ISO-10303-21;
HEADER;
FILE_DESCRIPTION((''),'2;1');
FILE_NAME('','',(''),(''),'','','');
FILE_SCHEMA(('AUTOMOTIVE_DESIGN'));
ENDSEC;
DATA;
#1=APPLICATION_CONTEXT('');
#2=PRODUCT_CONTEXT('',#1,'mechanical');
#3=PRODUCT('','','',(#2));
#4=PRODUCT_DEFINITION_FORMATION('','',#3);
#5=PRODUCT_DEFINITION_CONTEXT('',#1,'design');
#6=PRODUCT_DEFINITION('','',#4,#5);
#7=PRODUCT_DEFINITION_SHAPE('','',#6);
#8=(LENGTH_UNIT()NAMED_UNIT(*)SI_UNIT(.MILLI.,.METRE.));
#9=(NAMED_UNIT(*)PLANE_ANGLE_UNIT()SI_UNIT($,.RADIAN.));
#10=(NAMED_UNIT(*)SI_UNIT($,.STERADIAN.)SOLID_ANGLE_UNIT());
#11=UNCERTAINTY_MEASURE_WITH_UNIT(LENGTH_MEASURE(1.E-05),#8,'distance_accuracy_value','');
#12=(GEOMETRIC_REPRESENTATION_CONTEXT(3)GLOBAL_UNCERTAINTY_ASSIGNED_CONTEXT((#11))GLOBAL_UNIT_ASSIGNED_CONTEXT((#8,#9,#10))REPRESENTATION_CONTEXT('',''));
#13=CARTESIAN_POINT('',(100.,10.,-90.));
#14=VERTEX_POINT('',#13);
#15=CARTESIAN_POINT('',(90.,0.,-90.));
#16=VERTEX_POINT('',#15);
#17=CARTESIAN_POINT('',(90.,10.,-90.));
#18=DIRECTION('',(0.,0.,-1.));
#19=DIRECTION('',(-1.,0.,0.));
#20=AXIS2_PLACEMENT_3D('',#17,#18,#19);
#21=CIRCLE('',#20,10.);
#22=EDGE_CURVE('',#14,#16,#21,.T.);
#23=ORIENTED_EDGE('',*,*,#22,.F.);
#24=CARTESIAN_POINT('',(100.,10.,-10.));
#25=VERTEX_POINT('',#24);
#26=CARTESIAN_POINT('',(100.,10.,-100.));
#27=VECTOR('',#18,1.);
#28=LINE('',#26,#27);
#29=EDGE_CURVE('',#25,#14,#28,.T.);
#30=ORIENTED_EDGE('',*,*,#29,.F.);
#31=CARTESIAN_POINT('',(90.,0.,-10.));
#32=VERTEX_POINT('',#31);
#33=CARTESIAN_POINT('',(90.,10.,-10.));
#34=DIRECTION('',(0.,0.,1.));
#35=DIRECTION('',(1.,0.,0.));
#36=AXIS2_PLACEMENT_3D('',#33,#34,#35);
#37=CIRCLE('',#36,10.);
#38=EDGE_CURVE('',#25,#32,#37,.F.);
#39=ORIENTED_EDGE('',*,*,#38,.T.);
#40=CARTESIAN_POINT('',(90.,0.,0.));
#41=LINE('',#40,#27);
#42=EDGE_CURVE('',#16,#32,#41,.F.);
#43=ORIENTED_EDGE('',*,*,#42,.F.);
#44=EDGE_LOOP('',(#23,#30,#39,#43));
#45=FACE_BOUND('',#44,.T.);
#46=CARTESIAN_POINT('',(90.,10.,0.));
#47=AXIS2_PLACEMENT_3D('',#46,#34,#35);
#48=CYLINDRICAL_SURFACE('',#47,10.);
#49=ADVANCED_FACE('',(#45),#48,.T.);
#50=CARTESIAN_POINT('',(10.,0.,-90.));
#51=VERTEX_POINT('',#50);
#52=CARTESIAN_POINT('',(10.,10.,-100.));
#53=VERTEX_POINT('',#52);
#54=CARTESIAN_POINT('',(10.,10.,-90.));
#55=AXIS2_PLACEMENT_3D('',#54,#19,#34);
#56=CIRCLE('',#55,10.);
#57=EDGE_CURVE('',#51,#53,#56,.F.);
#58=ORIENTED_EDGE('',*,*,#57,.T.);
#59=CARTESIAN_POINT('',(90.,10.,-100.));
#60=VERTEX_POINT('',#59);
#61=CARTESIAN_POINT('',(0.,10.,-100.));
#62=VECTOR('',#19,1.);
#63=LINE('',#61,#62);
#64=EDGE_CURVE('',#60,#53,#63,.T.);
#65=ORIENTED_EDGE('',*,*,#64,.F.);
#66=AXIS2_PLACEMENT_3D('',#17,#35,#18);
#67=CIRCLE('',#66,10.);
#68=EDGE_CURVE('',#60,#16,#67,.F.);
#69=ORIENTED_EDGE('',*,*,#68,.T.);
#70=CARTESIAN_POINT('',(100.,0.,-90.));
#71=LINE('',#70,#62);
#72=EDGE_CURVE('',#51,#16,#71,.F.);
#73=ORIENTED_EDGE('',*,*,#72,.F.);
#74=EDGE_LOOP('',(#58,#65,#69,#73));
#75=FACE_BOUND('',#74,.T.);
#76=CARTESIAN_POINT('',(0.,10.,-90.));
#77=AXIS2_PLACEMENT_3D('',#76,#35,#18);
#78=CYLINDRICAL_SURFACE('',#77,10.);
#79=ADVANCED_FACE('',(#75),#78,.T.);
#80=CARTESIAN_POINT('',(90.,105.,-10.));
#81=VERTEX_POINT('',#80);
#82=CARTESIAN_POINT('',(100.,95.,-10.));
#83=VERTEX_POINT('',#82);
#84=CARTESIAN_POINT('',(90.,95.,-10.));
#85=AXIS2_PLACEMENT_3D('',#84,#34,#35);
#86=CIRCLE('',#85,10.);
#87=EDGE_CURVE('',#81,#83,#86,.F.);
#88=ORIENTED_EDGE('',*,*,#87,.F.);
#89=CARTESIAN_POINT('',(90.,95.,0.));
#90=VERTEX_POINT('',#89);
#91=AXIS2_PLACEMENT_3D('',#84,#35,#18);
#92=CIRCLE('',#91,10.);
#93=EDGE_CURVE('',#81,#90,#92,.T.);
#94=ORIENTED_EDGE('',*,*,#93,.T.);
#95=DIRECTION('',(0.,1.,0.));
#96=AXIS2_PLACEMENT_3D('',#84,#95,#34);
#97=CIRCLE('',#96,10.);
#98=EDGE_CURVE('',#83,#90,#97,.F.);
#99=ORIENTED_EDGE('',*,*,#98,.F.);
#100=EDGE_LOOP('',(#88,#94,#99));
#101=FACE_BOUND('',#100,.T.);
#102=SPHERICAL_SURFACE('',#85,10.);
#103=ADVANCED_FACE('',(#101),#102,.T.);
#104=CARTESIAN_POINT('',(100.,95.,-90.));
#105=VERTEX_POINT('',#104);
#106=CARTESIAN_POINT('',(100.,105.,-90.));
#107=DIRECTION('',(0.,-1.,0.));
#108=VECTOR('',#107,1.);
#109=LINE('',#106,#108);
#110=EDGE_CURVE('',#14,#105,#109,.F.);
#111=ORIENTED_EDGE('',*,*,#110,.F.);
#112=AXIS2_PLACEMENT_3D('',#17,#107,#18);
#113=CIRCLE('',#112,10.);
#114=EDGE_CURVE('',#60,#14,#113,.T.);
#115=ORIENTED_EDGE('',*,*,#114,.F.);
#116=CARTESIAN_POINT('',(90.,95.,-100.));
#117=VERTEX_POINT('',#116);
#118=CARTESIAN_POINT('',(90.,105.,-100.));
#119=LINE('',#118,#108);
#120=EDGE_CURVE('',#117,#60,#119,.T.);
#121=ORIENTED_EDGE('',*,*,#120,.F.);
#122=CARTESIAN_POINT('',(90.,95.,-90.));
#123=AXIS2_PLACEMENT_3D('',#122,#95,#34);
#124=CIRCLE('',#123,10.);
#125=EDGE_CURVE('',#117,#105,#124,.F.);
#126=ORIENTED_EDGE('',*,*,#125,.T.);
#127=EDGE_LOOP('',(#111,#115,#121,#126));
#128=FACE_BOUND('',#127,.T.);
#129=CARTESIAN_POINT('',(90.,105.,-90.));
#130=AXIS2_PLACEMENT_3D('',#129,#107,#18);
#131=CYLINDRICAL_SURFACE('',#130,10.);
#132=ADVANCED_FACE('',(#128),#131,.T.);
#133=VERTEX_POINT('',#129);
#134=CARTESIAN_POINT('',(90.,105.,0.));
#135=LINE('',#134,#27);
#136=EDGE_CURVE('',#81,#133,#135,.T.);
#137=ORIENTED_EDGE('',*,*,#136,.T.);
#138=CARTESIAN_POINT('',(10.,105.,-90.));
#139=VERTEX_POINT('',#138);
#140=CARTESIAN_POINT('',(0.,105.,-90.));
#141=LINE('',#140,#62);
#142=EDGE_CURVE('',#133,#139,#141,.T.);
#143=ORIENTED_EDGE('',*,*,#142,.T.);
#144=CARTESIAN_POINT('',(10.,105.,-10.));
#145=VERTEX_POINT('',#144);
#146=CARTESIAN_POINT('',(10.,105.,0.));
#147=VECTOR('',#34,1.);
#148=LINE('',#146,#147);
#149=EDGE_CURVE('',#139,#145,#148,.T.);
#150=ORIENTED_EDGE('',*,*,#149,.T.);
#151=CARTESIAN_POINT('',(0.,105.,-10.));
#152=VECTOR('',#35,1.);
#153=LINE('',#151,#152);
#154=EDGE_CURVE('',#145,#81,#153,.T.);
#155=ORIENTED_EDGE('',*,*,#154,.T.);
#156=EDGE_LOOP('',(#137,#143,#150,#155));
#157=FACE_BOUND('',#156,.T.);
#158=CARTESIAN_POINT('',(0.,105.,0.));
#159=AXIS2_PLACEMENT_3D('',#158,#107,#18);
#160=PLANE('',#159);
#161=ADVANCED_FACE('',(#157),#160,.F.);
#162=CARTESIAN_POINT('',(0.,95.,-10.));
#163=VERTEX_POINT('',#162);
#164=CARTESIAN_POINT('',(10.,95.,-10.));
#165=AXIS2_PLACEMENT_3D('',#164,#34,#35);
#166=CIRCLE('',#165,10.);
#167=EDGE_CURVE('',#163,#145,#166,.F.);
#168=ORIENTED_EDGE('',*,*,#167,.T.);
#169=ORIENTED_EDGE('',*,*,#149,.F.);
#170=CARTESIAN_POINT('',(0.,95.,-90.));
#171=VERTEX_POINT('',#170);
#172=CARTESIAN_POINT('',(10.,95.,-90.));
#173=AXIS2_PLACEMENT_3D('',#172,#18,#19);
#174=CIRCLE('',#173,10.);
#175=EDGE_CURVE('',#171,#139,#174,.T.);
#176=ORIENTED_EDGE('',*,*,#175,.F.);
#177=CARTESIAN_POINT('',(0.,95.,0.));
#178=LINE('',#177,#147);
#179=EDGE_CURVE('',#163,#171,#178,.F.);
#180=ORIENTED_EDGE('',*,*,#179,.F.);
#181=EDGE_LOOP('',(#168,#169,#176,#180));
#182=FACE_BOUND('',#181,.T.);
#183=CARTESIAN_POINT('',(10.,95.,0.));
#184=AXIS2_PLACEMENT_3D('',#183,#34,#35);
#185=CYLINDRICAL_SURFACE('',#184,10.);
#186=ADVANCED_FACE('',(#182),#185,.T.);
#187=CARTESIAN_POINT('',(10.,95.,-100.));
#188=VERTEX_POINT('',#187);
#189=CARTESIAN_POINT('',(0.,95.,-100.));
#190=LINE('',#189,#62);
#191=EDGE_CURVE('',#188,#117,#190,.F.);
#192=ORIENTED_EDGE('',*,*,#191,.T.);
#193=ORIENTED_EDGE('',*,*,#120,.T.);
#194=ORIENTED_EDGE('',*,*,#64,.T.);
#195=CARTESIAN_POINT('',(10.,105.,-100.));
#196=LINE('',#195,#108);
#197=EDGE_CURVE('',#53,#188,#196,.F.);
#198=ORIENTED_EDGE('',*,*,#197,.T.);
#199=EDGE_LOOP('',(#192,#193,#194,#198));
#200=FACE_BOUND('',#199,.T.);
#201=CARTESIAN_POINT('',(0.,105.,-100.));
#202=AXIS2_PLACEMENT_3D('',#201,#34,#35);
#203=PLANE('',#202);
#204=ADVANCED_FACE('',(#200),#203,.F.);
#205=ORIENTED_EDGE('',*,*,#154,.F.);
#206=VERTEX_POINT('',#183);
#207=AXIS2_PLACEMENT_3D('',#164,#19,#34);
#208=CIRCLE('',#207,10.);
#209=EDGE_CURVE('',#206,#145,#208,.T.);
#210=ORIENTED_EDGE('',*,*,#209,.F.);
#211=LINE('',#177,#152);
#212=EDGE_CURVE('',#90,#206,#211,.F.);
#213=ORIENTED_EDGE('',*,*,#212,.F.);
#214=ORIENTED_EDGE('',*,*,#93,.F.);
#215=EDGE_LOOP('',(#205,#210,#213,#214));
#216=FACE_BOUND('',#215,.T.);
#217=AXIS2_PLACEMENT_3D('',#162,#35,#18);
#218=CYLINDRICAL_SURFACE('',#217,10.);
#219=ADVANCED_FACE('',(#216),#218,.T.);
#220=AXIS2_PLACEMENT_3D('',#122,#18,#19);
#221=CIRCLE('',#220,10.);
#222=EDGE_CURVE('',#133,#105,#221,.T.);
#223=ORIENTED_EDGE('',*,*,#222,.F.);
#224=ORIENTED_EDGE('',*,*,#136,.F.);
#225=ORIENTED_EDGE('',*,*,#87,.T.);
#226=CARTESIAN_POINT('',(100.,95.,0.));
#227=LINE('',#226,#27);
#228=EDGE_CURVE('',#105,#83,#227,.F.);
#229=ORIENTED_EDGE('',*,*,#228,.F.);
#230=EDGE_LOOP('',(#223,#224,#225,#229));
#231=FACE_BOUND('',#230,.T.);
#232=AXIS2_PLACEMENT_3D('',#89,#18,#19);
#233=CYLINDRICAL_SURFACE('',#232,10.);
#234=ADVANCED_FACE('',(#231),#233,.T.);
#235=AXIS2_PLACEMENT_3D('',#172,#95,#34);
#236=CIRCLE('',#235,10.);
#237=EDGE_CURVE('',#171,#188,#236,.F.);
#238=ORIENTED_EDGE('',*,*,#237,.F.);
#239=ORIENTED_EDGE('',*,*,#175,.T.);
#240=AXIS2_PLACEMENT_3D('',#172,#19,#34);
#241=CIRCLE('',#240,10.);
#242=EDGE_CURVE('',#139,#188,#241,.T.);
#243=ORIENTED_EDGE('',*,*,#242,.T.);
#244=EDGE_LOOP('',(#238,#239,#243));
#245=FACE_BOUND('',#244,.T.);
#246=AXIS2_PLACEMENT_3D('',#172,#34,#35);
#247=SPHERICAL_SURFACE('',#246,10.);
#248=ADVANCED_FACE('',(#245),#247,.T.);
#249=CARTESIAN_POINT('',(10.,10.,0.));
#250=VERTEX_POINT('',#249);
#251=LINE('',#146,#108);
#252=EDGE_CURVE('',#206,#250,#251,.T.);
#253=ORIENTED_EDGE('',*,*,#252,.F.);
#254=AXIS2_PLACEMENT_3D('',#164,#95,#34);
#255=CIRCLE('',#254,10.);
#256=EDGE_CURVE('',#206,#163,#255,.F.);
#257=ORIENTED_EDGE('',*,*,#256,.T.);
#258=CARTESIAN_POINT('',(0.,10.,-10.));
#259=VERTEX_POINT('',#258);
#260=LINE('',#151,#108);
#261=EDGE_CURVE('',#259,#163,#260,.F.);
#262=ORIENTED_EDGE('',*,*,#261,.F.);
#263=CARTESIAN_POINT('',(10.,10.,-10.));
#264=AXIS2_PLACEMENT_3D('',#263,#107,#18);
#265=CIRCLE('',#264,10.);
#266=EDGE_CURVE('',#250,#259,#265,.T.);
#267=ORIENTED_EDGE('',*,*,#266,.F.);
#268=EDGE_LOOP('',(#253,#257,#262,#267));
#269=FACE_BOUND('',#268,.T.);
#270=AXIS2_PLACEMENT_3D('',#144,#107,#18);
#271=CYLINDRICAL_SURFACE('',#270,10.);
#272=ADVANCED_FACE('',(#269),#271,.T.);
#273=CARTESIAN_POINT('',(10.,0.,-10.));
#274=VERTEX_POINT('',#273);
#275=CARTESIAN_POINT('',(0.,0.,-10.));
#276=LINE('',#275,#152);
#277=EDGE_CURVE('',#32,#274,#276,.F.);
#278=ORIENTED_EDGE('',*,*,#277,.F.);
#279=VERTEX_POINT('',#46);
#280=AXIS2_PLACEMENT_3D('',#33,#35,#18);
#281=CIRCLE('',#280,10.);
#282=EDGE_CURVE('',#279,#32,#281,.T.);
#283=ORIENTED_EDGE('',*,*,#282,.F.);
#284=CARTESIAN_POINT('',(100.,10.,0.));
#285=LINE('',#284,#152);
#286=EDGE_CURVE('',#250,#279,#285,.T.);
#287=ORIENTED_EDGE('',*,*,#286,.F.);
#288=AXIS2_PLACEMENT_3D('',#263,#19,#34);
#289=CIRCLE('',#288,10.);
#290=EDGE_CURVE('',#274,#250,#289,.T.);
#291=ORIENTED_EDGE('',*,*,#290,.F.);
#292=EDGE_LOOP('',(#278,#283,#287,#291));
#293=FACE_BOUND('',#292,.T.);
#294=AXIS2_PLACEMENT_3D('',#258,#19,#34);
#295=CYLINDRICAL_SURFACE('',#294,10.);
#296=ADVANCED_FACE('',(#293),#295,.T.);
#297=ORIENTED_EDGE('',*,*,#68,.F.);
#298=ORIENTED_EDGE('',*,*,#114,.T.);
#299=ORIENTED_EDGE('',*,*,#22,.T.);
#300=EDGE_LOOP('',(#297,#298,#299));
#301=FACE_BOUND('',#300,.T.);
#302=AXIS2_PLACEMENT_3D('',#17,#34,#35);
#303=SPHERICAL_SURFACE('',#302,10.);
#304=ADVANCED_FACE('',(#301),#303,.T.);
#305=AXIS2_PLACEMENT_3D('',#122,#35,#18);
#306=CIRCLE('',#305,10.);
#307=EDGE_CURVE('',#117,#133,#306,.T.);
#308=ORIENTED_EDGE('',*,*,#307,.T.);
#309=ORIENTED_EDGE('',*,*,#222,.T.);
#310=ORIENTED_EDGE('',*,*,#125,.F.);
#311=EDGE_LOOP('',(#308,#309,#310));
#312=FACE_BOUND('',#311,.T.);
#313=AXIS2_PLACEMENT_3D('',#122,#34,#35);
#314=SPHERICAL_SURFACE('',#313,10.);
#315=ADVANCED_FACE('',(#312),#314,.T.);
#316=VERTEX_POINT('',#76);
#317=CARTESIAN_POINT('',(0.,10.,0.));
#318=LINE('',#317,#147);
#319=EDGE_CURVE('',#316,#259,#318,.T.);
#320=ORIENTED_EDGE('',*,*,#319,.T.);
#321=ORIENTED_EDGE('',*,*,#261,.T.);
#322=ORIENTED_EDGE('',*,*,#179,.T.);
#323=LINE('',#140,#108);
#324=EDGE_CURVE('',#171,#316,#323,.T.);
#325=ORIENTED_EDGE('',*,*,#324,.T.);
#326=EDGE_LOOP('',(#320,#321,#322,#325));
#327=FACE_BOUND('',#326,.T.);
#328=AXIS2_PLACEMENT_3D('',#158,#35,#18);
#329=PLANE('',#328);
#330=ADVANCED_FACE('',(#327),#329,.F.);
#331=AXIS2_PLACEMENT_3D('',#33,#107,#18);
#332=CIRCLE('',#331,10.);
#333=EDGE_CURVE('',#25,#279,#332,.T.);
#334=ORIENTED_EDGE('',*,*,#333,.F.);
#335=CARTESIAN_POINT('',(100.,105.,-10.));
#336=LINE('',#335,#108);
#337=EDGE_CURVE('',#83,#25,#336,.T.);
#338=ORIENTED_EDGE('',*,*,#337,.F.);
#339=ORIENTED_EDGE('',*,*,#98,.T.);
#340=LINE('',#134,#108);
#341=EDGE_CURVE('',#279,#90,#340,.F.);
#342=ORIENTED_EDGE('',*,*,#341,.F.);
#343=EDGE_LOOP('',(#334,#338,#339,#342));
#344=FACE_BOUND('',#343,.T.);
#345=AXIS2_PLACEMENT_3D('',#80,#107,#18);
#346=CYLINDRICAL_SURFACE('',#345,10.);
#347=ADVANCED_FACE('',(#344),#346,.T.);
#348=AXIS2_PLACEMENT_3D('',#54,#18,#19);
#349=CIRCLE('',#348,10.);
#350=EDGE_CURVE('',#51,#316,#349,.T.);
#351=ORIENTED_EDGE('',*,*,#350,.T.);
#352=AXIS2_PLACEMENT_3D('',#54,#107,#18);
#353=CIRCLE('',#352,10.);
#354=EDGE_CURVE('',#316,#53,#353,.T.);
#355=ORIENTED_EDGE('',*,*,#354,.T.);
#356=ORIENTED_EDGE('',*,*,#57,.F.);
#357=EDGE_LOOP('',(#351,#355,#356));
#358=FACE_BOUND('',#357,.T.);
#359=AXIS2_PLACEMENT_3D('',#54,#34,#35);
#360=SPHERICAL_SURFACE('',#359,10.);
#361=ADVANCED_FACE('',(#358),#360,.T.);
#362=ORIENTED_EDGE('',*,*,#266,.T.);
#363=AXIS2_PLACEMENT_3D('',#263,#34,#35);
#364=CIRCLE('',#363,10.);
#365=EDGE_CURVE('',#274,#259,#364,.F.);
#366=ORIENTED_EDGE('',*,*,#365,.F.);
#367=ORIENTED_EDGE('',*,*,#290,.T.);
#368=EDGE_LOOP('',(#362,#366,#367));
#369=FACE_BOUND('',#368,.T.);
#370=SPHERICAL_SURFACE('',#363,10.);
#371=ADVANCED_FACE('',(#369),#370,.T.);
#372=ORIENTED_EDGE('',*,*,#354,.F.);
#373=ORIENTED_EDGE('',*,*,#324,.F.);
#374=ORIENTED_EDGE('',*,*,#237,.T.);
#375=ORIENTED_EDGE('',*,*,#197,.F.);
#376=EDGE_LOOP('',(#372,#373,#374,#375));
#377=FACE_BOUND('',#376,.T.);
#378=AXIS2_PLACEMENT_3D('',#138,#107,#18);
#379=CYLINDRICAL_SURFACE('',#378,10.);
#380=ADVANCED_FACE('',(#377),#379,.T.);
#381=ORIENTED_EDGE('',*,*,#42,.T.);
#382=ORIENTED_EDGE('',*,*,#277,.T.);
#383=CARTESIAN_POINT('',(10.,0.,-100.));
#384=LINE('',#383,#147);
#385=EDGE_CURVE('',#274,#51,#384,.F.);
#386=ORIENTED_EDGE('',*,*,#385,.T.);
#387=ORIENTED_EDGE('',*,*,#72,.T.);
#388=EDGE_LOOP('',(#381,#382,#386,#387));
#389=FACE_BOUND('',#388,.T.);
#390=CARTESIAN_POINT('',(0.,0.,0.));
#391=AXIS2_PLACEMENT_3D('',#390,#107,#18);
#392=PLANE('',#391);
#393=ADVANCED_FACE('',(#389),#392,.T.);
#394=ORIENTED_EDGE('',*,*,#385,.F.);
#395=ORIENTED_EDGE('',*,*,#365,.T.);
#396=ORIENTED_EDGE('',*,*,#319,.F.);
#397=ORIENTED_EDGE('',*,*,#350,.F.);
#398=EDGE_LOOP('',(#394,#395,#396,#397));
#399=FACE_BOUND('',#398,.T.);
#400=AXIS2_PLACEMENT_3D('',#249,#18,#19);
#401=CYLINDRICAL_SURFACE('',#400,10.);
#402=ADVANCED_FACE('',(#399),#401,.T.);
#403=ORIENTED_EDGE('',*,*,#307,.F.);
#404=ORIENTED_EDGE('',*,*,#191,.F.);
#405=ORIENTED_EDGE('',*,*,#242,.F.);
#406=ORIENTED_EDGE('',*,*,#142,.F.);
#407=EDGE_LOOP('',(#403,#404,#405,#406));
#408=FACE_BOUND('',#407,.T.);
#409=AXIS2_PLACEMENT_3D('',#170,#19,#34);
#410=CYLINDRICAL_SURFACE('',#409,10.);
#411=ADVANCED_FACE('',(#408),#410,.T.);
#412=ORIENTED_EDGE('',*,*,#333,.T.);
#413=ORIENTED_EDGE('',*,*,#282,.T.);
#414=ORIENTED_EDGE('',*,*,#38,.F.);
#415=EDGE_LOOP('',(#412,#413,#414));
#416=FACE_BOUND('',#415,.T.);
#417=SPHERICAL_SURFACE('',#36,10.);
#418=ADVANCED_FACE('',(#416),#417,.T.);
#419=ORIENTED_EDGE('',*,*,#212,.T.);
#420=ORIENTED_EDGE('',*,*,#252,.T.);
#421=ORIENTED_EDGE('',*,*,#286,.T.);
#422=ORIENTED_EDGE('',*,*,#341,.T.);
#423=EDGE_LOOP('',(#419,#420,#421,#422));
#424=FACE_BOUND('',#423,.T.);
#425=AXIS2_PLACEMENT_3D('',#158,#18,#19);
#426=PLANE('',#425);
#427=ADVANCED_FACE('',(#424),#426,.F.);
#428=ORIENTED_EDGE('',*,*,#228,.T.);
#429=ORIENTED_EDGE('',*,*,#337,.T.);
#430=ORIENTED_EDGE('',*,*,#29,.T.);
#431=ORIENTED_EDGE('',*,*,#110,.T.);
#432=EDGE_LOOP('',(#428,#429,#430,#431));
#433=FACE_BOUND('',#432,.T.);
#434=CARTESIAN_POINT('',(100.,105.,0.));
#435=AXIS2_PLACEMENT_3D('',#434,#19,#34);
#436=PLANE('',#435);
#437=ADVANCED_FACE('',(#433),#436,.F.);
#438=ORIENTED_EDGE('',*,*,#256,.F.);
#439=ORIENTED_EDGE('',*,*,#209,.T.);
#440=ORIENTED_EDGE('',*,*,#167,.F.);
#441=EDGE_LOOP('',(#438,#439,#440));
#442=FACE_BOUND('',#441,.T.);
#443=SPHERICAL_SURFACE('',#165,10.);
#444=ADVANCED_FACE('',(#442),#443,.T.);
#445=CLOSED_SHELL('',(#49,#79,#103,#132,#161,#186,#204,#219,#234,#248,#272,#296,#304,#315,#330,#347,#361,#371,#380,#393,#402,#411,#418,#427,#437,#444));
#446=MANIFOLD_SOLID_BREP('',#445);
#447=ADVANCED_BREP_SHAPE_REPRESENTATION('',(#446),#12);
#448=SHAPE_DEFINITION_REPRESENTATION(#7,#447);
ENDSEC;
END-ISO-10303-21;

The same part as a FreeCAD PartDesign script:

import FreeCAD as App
import Part
import Sketcher

V = App.Vector
Q = App.Units.Quantity

doc = App.newDocument("Part")
body = doc.addObject("PartDesign::Body", "Body")

# Sketch on XZ plane
sketch1 = doc.addObject("Sketcher::SketchObject", "Sketch")
body.addObject(sketch1)
sketch1.AttachmentSupport = (doc.XZ_Plane, [""])
sketch1.MapMode = "FlatFace"
sketch1.addGeometry([
    Part.LineSegment(V(0, -100, 0), V(0, 0, 0)),
    Part.LineSegment(V(0, 0, 0), V(100, 0, 0)),
    Part.LineSegment(V(100, 0, 0), V(100, -100, 0)),
    Part.LineSegment(V(100, -100, 0), V(0, -100, 0)),
], False)
sketch1.addConstraint([
    Sketcher.Constraint("Coincident", 0, 2, 1, 1),
    Sketcher.Constraint("Coincident", 1, 2, 2, 1),
    Sketcher.Constraint("Coincident", 2, 2, 3, 1),
    Sketcher.Constraint("Coincident", 3, 2, 0, 1),
    Sketcher.Constraint("Vertical", 0),
    Sketcher.Constraint("Horizontal", 1),
    Sketcher.Constraint("Vertical", 2),
    Sketcher.Constraint("Horizontal", 3),
    Sketcher.Constraint("Coincident", 0, 2, -1, 1),
    Sketcher.Constraint("Equal", 3, 0),
    Sketcher.Constraint("DistanceX", 1, 1, 1, 2, Q("100 mm")),
])
pad1 = doc.addObject("PartDesign::Pad", "Pad")
body.addObject(pad1)
pad1.Profile = sketch1
pad1.Length = 105
pad1.Reversed = True
doc.recompute()

fillet = doc.addObject("PartDesign::Fillet", "Fillet")
body.addObject(fillet)
fillet.Base = (pad1, ["Edge1"])
fillet.UseAllEdges = True
fillet.Radius = 10

doc.recompute()
